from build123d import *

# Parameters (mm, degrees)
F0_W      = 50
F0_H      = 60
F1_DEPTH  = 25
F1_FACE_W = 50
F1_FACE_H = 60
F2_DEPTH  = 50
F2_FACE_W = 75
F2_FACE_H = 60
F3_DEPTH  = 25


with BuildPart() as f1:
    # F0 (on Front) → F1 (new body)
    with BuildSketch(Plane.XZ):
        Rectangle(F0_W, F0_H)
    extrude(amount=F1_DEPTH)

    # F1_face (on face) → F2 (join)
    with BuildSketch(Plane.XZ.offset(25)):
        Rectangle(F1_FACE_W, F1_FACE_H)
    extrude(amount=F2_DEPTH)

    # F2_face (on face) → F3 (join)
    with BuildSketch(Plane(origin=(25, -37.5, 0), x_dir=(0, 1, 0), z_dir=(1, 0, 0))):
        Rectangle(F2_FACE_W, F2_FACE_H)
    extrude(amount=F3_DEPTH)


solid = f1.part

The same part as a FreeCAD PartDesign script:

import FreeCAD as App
import Part
import Sketcher
from FreeCAD import Vector
Q = App.Units.Quantity


def add_polygon(sketch, points):
    """Adds a closed chain of lines whose ends are joined by coincident constraints."""
    first, n = sketch.GeometryCount, len(points)
    for a, b in zip(points, points[1:] + points[:1]):
        sketch.addGeometry(Part.LineSegment(App.Vector(*a, 0), App.Vector(*b, 0)), False)
    for i in range(n):
        sketch.addConstraint(Sketcher.Constraint("Coincident", first + i, 2, first + (i + 1) % n, 1))

doc = App.newDocument("Part")
body = doc.addObject("PartDesign::Body", "Body")

# Sketch on XZ plane
sketch1 = body.newObject("Sketcher::SketchObject", "Sketch")
sketch1.AttachmentSupport = (doc.getObject("XZ_Plane"), [""])
sketch1.MapMode = "FlatFace"
add_polygon(sketch1, [(-25, 30), (-25, -30), (25, -30), (25, 30)])  # lines 0-3
sketch1.addConstraint(Sketcher.Constraint("Vertical", 0))
sketch1.addConstraint(Sketcher.Constraint("Horizontal", 1))
sketch1.addConstraint(Sketcher.Constraint("Vertical", 2))
sketch1.addConstraint(Sketcher.Constraint("Horizontal", 3))
sketch1.addConstraint(Sketcher.Constraint("Symmetric", 0, 2, 2, 2, -1, 1))
sketch1.addConstraint(Sketcher.Constraint("DistanceX", 1, 1, 1, 2, Q("50 mm")))
sketch1.addConstraint(Sketcher.Constraint("DistanceY", 0, 2, 0, 1, Q("60 mm")))
pad1 = body.newObject("PartDesign::Pad", "Pad")
pad1.Profile = sketch1
pad1.Length = 25

# Sketch on XZ plane
sketch2 = body.newObject("Sketcher::SketchObject", "Sketch001")
sketch2.AttachmentSupport = (doc.getObject("XZ_Plane"), [""])
sketch2.MapMode = "FlatFace"
sketch2.AttachmentOffset = App.Placement(Vector(0, 0, 25), App.Rotation())
add_polygon(sketch2, [(-25, 30), (-25, -30), (25, -30), (25, 30)])  # lines 0-3
sketch2.addConstraint(Sketcher.Constraint("Vertical", 0))
sketch2.addConstraint(Sketcher.Constraint("Horizontal", 1))
sketch2.addConstraint(Sketcher.Constraint("Vertical", 2))
sketch2.addConstraint(Sketcher.Constraint("Horizontal", 3))
sketch2.addConstraint(Sketcher.Constraint("Symmetric", 0, 2, 2, 2, -1, 1))
sketch2.addConstraint(Sketcher.Constraint("DistanceX", 1, 1, 1, 2, Q("50 mm")))
sketch2.addConstraint(Sketcher.Constraint("DistanceY", 0, 2, 0, 1, Q("60 mm")))
pad2 = body.newObject("PartDesign::Pad", "Pad001")
pad2.Profile = sketch2
pad2.Length = 50

# Sketch on YZ plane
sketch3 = body.newObject("Sketcher::SketchObject", "Sketch002")
sketch3.AttachmentSupport = (doc.getObject("YZ_Plane"), [""])
sketch3.MapMode = "FlatFace"
sketch3.AttachmentOffset = App.Placement(Vector(0, 0, 25), App.Rotation())
add_polygon(sketch3, [(-75, 30), (-75, -30), (0, -30), (0, 30)])  # lines 0-3
sketch3.addConstraint(Sketcher.Constraint("Vertical", 0))
sketch3.addConstraint(Sketcher.Constraint("Horizontal", 1))
sketch3.addConstraint(Sketcher.Constraint("Vertical", 2))
sketch3.addConstraint(Sketcher.Constraint("Horizontal", 3))
sketch3.addConstraint(Sketcher.Constraint("Symmetric", 1, 2, 2, 2, -1, 1))
sketch3.addConstraint(Sketcher.Constraint("DistanceX", 1, 1, 1, 2, Q("75 mm")))
sketch3.addConstraint(Sketcher.Constraint("DistanceY", 0, 2, 0, 1, Q("60 mm")))
pad3 = body.newObject("PartDesign::Pad", "Pad002")
pad3.Profile = sketch3
pad3.Length = 25

doc.recompute()
